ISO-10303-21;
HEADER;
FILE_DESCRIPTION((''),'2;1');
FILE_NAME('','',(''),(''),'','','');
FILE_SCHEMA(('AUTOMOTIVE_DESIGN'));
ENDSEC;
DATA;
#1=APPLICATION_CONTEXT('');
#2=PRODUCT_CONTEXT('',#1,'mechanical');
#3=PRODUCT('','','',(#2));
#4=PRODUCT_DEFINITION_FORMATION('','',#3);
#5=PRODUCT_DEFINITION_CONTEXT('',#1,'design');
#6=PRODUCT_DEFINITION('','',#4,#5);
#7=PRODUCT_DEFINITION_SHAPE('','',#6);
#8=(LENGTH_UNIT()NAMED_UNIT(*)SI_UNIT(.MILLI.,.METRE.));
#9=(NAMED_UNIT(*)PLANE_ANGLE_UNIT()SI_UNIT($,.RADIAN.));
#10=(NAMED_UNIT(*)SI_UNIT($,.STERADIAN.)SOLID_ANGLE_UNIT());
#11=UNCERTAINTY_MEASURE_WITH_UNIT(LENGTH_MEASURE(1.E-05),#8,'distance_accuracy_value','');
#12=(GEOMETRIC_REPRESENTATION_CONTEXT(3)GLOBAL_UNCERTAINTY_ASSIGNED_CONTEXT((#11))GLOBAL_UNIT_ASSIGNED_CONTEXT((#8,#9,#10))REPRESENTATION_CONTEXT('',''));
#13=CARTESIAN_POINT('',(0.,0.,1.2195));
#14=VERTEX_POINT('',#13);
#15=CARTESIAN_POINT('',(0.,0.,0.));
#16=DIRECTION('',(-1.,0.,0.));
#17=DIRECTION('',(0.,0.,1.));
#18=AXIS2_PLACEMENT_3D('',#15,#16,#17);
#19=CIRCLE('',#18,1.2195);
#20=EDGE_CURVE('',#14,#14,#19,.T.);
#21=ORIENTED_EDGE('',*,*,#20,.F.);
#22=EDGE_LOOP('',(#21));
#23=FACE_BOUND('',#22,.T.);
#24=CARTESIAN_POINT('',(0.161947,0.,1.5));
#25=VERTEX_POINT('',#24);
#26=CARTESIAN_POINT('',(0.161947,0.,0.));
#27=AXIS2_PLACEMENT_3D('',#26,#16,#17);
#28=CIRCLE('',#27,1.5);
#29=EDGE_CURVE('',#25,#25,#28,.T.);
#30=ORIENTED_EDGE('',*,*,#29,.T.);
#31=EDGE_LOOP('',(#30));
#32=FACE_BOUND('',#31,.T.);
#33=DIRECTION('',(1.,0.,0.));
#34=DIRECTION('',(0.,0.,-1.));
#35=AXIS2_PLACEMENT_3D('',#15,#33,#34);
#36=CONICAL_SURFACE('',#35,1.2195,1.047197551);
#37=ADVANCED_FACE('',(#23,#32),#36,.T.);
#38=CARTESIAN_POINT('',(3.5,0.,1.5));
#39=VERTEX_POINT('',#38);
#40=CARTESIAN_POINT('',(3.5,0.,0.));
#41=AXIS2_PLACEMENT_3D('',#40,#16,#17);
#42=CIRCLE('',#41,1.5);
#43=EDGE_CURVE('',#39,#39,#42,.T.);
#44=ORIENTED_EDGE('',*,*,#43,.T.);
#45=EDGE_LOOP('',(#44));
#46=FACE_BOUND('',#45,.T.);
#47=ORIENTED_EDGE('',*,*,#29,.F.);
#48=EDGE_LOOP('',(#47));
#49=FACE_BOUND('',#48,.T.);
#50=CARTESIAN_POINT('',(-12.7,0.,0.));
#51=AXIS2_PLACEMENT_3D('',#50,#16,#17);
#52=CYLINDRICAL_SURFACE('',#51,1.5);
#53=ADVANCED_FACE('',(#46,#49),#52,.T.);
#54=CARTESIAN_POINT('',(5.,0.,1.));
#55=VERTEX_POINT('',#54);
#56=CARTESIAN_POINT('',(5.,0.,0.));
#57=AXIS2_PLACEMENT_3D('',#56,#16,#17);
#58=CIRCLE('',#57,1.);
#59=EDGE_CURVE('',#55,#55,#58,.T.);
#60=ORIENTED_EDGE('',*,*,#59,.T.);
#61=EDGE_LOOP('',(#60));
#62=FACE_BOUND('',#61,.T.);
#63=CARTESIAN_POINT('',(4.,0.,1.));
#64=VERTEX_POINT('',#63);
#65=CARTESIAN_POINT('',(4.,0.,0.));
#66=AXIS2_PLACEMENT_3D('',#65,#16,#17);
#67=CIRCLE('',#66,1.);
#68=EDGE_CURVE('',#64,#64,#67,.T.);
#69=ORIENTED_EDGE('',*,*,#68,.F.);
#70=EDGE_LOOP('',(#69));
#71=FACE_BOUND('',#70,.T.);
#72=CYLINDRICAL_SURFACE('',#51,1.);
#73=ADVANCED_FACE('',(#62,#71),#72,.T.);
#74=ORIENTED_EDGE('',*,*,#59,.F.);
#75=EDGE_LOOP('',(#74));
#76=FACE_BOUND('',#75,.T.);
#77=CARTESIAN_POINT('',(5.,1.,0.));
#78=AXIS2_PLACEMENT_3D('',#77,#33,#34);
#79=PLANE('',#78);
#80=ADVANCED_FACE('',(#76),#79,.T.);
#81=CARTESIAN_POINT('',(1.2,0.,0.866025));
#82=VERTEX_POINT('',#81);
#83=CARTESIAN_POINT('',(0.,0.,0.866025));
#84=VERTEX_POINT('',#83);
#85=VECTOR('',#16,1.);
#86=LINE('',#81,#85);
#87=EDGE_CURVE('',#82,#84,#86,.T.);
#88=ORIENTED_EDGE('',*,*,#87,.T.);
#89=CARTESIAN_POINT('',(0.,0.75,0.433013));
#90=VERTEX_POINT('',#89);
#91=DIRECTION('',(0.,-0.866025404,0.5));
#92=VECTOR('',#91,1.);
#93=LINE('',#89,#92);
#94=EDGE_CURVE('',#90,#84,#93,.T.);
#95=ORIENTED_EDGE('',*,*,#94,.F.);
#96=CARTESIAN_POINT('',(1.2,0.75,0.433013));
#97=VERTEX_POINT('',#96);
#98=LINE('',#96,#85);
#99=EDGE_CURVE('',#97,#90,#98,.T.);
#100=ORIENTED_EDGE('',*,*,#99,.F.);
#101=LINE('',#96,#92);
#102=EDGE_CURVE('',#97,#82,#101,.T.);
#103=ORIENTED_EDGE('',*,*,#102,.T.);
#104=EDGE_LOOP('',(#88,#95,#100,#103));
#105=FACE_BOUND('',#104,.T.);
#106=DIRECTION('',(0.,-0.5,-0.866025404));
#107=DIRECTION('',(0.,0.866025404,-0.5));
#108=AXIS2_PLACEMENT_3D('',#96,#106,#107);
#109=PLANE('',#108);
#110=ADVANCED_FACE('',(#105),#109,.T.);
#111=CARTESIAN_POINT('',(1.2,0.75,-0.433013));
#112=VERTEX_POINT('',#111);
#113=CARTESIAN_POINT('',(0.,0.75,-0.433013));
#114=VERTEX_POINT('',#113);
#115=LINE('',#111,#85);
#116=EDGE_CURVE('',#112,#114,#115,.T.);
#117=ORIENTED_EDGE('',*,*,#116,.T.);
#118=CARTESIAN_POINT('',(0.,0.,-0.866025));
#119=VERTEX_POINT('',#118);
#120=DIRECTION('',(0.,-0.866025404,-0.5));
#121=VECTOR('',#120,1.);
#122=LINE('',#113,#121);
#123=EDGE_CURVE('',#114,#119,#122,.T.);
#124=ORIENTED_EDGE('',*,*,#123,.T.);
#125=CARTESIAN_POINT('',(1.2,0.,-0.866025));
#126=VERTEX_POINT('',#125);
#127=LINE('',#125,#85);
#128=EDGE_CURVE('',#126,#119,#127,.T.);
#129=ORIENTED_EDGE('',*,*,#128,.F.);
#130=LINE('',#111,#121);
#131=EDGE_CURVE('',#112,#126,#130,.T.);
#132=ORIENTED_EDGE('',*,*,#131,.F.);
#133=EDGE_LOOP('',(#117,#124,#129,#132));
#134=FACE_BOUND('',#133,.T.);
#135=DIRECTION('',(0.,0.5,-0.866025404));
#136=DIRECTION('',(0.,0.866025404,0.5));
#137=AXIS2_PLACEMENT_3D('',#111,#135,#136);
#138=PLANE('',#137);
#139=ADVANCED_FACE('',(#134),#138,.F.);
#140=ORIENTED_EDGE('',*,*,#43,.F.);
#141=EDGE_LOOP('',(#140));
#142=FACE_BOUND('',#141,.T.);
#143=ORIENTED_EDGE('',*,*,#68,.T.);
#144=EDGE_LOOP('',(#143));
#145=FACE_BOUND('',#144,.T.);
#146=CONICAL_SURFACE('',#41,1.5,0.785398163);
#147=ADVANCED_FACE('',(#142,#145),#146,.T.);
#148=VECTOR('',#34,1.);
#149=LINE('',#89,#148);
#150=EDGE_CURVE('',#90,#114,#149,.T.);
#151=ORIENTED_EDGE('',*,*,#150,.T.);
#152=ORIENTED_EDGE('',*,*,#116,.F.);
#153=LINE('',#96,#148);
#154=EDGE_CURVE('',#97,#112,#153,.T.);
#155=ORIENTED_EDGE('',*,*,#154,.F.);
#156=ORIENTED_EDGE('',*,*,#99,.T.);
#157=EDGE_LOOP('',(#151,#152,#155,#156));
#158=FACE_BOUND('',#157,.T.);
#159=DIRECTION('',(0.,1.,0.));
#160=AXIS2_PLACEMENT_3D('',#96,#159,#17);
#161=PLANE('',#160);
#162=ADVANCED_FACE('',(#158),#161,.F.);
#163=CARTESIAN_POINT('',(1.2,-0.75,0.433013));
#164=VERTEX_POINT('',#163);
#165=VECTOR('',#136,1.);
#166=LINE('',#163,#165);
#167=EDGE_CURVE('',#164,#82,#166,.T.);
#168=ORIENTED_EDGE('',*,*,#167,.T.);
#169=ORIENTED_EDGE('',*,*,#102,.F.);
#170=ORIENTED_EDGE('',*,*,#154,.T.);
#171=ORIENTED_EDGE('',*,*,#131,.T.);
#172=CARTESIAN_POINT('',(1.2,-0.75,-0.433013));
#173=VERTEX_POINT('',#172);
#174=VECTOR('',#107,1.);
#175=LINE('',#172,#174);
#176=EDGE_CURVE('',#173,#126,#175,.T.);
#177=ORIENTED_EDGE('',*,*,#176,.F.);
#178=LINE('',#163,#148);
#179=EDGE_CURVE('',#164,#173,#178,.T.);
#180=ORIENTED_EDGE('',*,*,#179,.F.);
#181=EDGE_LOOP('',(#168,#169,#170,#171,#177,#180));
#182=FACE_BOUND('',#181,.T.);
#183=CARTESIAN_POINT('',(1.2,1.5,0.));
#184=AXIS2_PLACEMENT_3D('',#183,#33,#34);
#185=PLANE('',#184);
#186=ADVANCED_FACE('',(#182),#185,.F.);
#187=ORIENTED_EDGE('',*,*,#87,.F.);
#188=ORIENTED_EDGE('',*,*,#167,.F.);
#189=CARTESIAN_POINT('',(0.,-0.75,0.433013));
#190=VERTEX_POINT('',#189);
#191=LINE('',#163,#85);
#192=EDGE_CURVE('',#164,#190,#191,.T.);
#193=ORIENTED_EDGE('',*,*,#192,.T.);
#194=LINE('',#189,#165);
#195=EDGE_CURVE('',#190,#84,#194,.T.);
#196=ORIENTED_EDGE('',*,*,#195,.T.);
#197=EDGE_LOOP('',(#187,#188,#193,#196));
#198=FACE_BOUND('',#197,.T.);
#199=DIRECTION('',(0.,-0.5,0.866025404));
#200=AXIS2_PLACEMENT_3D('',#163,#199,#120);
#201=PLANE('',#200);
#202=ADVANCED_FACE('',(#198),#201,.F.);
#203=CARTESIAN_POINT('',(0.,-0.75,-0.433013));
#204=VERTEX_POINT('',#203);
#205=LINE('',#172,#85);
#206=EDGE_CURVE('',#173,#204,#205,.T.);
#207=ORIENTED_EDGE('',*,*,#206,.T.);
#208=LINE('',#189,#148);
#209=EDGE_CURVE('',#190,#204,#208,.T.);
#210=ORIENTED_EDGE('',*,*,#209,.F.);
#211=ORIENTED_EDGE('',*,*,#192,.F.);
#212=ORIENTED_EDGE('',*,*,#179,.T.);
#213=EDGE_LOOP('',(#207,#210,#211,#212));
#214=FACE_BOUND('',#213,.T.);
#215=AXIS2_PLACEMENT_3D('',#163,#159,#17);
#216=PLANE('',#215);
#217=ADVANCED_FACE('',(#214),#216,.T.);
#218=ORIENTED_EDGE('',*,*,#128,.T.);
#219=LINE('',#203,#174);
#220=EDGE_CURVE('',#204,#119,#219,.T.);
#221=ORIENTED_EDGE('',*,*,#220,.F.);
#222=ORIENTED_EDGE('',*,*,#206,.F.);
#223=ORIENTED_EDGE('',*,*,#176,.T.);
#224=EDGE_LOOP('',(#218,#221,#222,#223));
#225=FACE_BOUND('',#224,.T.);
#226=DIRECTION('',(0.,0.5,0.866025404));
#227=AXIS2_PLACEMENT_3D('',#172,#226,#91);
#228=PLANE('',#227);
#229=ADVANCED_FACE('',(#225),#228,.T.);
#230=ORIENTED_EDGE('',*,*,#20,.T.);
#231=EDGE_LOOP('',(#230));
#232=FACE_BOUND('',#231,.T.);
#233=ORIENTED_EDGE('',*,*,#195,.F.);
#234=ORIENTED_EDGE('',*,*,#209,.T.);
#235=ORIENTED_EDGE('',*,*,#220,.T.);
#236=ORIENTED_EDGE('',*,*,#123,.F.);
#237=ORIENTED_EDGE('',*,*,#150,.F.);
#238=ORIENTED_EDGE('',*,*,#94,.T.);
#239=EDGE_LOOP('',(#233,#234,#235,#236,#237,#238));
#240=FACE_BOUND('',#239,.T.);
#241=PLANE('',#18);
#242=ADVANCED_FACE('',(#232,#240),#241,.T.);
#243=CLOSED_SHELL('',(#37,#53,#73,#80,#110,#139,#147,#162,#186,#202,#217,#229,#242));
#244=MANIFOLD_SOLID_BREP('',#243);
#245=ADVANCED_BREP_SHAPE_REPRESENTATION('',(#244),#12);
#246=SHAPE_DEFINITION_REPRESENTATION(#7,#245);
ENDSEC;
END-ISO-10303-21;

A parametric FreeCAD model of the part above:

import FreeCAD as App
import Part
import Sketcher

V = App.Vector
Q = App.Units.Quantity


def add_polygon(sketch, points):
    """Adds a closed chain of lines whose ends are joined by coincident constraints."""
    first, n = sketch.GeometryCount, len(points)
    for a, b in zip(points, points[1:] + points[:1]):
        sketch.addGeometry(Part.LineSegment(App.Vector(*a, 0), App.Vector(*b, 0)), False)
    for i in range(n):
        sketch.addConstraint(Sketcher.Constraint("Coincident", first + i, 2, first + (i + 1) % n, 1))

doc = App.newDocument("Part")
body = doc.addObject("PartDesign::Body", "Body")

# Sketch on XY plane
sketch1 = body.newObject("Sketcher::SketchObject", "Sketch")
sketch1.AttachmentSupport = (doc.getObject("XY_Plane"), [""])
sketch1.MapMode = "FlatFace"
add_polygon(sketch1, [(0, 1.22), (0, 0), (5, 0), (5, 1), (4, 1), (3.5, 1.5), (0.16, 1.5)])  # lines 0-6
sketch1.addConstraint([
    Sketcher.Constraint("Vertical", 0),
    Sketcher.Constraint("Horizontal", 1),
    Sketcher.Constraint("Vertical", 2),
    Sketcher.Constraint("Horizontal", 3),
    Sketcher.Constraint("Horizontal", 5),
    Sketcher.Constraint("Coincident", 0, 2, -1, 1),
    Sketcher.Constraint("Equal", 3, 2),
    Sketcher.Constraint("DistanceX", 1, 1, 1, 2, 5.0),
    Sketcher.Constraint("DistanceX", 3, 2, 3, 1, 1.0),
    Sketcher.Constraint("Angle", 4, Q("135 deg")),
    Sketcher.Constraint("Angle", 6, Q("-120 deg")),
    Sketcher.Constraint("DistanceX", -1, 1, 4, 2, 3.5),
    Sketcher.Constraint("DistanceY", 0, 2, 0, 1, 1.2195),
])
revolution = body.newObject("PartDesign::Revolution", "Revolution")
revolution.Profile = sketch1
revolution.ReferenceAxis = (sketch1, ["H_Axis"])
revolution.Angle = 360

# Sketch on YZ plane
sketch2 = body.newObject("Sketcher::SketchObject", "Sketch001")
sketch2.AttachmentSupport = (doc.getObject("YZ_Plane"), [""])
sketch2.MapMode = "FlatFace"
add_polygon(sketch2, [(0.8, 0.4), (0.8, -0.4), (0, -0.9), (-0.8, -0.4), (-0.8, 0.4), (0, 0.9)])  # lines 0-5
sketch2.addConstraint([
    Sketcher.Constraint("Vertical", 0),
    Sketcher.Constraint("Vertical", 3),
    Sketcher.Constraint("Symmetric", 0, 2, 3, 2, -1, 1),
    Sketcher.Constraint("Symmetric", 1, 2, 4, 2, -1, 1),
    Sketcher.Constraint("PointOnObject", 1, 2, -2),
    Sketcher.Constraint("Parallel", 2, 5),
    Sketcher.Constraint("Horizontal", 0, 2, 2, 2),
    Sketcher.Constraint("Angle", 1, Q("-150 deg")),
    Sketcher.Constraint("DistanceX", 2, 2, 0, 2, 1.5),
    Sketcher.Constraint("DistanceY", 0, 2, 0, 1, 0.866025),
])
pocket1 = body.newObject("PartDesign::Pocket", "Pocket")
pocket1.Profile = sketch2
pocket1.Length = 1.2
pocket1.Reversed = True

doc.recompute()
